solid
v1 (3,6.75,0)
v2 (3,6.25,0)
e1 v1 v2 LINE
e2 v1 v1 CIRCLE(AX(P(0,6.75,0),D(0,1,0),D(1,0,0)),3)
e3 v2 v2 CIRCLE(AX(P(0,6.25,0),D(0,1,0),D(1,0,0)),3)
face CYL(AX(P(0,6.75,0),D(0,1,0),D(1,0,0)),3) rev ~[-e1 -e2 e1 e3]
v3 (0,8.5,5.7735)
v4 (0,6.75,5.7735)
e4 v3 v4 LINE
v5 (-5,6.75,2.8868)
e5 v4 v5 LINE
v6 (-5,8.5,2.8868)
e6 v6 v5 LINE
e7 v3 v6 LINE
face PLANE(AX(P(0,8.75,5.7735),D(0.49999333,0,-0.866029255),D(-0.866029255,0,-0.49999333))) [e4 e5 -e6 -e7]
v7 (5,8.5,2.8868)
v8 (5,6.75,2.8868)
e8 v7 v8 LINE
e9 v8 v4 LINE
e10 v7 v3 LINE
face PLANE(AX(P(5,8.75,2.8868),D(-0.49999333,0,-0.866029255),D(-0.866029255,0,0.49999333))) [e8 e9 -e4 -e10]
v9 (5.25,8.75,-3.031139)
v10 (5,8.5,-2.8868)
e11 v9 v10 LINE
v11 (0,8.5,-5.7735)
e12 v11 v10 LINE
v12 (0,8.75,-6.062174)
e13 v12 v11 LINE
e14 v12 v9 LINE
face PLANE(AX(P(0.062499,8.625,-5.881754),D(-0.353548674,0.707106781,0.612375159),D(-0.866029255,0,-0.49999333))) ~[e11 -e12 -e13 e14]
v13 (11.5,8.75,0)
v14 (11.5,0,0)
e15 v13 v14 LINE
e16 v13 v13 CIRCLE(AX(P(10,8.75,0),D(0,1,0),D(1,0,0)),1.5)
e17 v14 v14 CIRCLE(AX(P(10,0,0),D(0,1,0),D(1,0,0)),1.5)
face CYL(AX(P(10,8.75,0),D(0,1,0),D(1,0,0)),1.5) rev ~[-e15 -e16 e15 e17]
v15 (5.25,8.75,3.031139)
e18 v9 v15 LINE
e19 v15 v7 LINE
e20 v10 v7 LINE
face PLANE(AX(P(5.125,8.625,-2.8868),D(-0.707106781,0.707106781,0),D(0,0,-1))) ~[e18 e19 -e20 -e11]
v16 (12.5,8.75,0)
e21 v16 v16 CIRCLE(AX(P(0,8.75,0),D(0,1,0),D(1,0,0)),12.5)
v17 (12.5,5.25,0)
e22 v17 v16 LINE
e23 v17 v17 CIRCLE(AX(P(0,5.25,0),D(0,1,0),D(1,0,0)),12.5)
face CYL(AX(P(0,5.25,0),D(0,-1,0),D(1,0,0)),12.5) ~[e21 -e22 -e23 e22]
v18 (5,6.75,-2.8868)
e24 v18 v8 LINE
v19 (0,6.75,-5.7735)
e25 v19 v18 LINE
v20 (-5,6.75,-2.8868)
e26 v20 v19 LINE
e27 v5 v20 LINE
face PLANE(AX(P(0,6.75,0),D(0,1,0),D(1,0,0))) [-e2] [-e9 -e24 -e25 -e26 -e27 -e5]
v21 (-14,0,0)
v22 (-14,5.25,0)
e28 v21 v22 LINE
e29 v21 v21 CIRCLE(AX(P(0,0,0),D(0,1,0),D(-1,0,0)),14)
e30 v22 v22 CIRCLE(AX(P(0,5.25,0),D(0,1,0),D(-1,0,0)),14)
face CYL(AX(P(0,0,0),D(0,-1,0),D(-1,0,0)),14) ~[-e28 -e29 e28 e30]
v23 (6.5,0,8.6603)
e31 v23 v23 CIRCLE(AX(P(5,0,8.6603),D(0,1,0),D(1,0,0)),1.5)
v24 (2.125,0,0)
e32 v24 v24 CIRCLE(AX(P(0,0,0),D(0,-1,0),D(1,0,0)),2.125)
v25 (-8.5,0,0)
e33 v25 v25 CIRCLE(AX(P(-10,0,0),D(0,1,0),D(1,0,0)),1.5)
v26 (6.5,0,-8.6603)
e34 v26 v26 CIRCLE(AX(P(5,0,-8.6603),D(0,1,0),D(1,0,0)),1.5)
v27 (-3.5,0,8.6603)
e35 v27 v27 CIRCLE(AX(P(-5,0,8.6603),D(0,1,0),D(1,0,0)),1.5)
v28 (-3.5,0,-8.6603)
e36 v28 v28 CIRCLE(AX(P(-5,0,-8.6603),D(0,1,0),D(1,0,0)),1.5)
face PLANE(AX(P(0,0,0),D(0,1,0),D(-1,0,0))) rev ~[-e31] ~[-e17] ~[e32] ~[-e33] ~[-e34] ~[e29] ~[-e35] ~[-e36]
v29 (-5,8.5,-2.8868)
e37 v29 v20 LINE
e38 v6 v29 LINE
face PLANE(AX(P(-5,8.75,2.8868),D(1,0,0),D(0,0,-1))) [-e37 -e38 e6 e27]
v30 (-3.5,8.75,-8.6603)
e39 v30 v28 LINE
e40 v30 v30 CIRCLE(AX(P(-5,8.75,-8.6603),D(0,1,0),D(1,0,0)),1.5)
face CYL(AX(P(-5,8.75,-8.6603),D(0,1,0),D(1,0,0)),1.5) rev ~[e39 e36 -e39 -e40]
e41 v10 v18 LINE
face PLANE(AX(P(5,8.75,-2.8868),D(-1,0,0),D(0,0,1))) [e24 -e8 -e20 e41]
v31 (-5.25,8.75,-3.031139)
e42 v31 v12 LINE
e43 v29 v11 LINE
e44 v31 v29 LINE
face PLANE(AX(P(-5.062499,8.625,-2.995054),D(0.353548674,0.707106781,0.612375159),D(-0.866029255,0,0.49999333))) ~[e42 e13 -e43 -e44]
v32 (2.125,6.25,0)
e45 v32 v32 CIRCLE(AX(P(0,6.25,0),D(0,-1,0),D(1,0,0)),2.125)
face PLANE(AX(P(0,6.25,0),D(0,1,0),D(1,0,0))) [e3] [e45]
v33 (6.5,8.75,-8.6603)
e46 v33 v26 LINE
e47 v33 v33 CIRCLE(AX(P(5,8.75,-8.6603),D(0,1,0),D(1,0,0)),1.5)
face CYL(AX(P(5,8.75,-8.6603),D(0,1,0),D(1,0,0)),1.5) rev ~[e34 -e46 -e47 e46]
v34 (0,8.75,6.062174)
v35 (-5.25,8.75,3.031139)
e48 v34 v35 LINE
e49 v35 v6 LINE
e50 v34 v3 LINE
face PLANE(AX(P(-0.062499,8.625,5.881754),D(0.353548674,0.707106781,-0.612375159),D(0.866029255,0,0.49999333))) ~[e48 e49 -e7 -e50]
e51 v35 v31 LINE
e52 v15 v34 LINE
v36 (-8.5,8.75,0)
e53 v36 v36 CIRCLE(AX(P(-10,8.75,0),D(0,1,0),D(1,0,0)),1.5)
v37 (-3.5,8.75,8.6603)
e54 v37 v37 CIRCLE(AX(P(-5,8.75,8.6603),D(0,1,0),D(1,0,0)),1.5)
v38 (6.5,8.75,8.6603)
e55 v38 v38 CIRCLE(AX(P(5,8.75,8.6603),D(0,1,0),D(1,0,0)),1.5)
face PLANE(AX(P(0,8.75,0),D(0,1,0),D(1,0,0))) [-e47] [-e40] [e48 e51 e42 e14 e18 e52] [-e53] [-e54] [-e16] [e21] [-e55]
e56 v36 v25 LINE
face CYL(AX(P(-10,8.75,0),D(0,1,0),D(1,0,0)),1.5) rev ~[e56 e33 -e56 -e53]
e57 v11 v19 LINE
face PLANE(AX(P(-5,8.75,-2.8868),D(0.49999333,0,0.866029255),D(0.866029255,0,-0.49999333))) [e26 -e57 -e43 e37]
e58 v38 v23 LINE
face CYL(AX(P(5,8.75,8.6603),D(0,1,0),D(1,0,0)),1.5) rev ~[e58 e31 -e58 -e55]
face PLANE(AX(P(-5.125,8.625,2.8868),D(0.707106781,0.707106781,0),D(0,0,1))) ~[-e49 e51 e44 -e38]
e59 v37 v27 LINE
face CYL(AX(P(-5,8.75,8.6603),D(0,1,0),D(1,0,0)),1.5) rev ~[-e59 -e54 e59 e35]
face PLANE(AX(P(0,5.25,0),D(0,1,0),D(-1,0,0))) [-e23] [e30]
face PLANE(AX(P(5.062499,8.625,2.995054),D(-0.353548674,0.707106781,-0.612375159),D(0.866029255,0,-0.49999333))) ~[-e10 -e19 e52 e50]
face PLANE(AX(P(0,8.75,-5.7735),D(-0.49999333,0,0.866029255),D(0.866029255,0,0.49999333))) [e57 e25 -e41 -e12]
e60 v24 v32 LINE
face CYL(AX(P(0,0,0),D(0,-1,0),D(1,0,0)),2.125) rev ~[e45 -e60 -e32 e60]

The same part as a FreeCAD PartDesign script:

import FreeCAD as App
import Part
import Sketcher
from FreeCAD import Vector
Q = App.Units.Quantity


def edges_at(feature, points):
    """Names of the edges that pass closest to the given points."""
    edges = feature.Shape.Edges
    near = lambda p: min(range(len(edges)), key=lambda i: edges[i].distToShape(Part.Vertex(*p))[0])
    return sorted({f"Edge{near(p) + 1}" for p in points})


def add_polygon(sketch, points):
    """Adds a closed chain of lines whose ends are joined by coincident constraints."""
    first, n = sketch.GeometryCount, len(points)
    for a, b in zip(points, points[1:] + points[:1]):
        sketch.addGeometry(Part.LineSegment(App.Vector(*a, 0), App.Vector(*b, 0)), False)
    for i in range(n):
        sketch.addConstraint(Sketcher.Constraint("Coincident", first + i, 2, first + (i + 1) % n, 1))

doc = App.newDocument("Part")
body = doc.addObject("PartDesign::Body", "Body")

# Sketch on XZ plane
sketch1 = doc.addObject("Sketcher::SketchObject", "Sketch")
body.addObject(sketch1)
sketch1.AttachmentSupport = (doc.XZ_Plane, [""])
sketch1.MapMode = "FlatFace"
sketch1.addGeometry(Part.Circle(Vector(0, 0, 0), Vector(0, 0, 1), 14), False)
sketch1.addConstraint([
    Sketcher.Constraint("Coincident", 0, 3, -1, 1),
    Sketcher.Constraint("Diameter", 0, Q("28 mm")),
])
pad1 = doc.addObject("PartDesign::Pad", "Pad")
body.addObject(pad1)
pad1.Profile = sketch1
pad1.Length = 5.25
pad1.Reversed = True

# Sketch on XZ plane
sketch2 = doc.addObject("Sketcher::SketchObject", "Sketch001")
body.addObject(sketch2)
sketch2.AttachmentSupport = (doc.XZ_Plane, [""])
sketch2.MapMode = "FlatFace"
sketch2.AttachmentOffset = App.Placement(Vector(0, 0, -5.25), App.Rotation())
sketch2.addGeometry(Part.Circle(Vector(0, 0, 0), Vector(0, 0, 1), 12), False)
sketch2.addConstraint([
    Sketcher.Constraint("Coincident", 0, 3, -1, 1),
    Sketcher.Constraint("Diameter", 0, Q("25 mm")),
])
pad2 = doc.addObject("PartDesign::Pad", "Pad001")
body.addObject(pad2)
pad2.Profile = sketch2
pad2.Length = 3.5
pad2.Reversed = True

# Sketch on XZ plane
sketch3 = doc.addObject("Sketcher::SketchObject", "Sketch002")
body.addObject(sketch3)
sketch3.AttachmentSupport = (doc.XZ_Plane, [""])
sketch3.MapMode = "FlatFace"
sketch3.AttachmentOffset = App.Placement(Vector(0, 0, -8.75), App.Rotation())
sketch3.addGeometry([
    Part.Circle(Vector(-10, 0, 0), Vector(0, 0, 1), 1.5),  # 0
    Part.Circle(Vector(-5, 8.7, 0), Vector(0, 0, 1), 1.5),  # 1
    Part.Circle(Vector(5, 8.7, 0), Vector(0, 0, 1), 1.5),  # 2
    Part.Circle(Vector(10, 0, 0), Vector(0, 0, 1), 1.5),  # 3
    Part.Circle(Vector(5, -8.7, 0), Vector(0, 0, 1), 1.5),  # 4
    Part.Circle(Vector(-5, -8.7, 0), Vector(0, 0, 1), 1.5),  # 5
], False)
sketch3.addConstraint([
    Sketcher.Constraint("Equal", 0, 1),
    Sketcher.Constraint("Equal", 1, 2),
    Sketcher.Constraint("Equal", 2, 3),
    Sketcher.Constraint("Equal", 3, 4),
    Sketcher.Constraint("Equal", 4, 5),
    Sketcher.Constraint("Symmetric", 0, 3, 3, 3, -1, 1),
    Sketcher.Constraint("Symmetric", 1, 3, 4, 3, -1, 1),
    Sketcher.Constraint("Symmetric", 2, 3, 5, 3, -1, 1),
    Sketcher.Constraint("Symmetric", 1, 3, 2, 3, -2),
    Sketcher.Constraint("PointOnObject", 0, 3, -1),
    Sketcher.Constraint("Diameter", 0, Q("3 mm")),
    Sketcher.Constraint("DistanceX", 0, 3, -1, 1, Q("10 mm")),
    Sketcher.Constraint("DistanceX", 1, 3, -1, 1, Q("5 mm")),
    Sketcher.Constraint("DistanceY", -1, 1, 1, 3, Q("8.6603 mm")),
])
pocket1 = doc.addObject("PartDesign::Pocket", "Pocket")
body.addObject(pocket1)
pocket1.Profile = sketch3
pocket1.Type = "ThroughAll"
pocket1.Reversed = True

# Sketch on XZ plane
sketch4 = doc.addObject("Sketcher::SketchObject", "Sketch003")
body.addObject(sketch4)
sketch4.AttachmentSupport = (doc.XZ_Plane, [""])
sketch4.MapMode = "FlatFace"
sketch4.AttachmentOffset = App.Placement(Vector(0, 0, -8.75), App.Rotation())
add_polygon(sketch4, [(-5, 3), (0, 6), (5, 3), (5, -3), (0, -6), (-5, -3)])  # lines 0-5
sketch4.addConstraint([
    Sketcher.Constraint("Vertical", 2),
    Sketcher.Constraint("Vertical", 5),
    Sketcher.Constraint("Symmetric", 0, 2, 3, 2, -1, 1),
    Sketcher.Constraint("Symmetric", 1, 2, 4, 2, -1, 1),
    Sketcher.Constraint("PointOnObject", 0, 2, -2),
    Sketcher.Constraint("Parallel", 0, 3),
    Sketcher.Constraint("Horizontal", 2, 2, 4, 2),
    Sketcher.Constraint("DistanceX", -1, 1, 1, 2, Q("5 mm")),
    Sketcher.Constraint("Angle", 0, Q("29.9996 deg")),
    Sketcher.Constraint("DistanceY", 2, 2, 2, 1, Q("5.7736 mm")),
])
pocket2 = doc.addObject("PartDesign::Pocket", "Pocket001")
body.addObject(pocket2)
pocket2.Profile = sketch4
pocket2.Length = 2
pocket2.Reversed = True

# Sketch on XZ plane
sketch5 = doc.addObject("Sketcher::SketchObject", "Sketch004")
body.addObject(sketch5)
sketch5.AttachmentSupport = (doc.XZ_Plane, [""])
sketch5.MapMode = "FlatFace"
sketch5.addGeometry(Part.Circle(Vector(0, 0, 0), Vector(0, 0, 1), 2.1), False)
sketch5.addConstraint([
    Sketcher.Constraint("Coincident", 0, 3, -1, 1),
    Sketcher.Constraint("Diameter", 0, Q("4.25 mm")),
])
pocket3 = doc.addObject("PartDesign::Pocket", "Pocket002")
body.addObject(pocket3)
pocket3.Profile = sketch5
pocket3.Type = "ThroughAll"
doc.recompute()

chamfer = doc.addObject("PartDesign::Chamfer", "Chamfer")
body.addObject(chamfer)
chamfer.Base = (pocket3, edges_at(pocket3, [
    (2.5, 8.75, 4.33),
    (5, 8.75, 0),
    (2.5, 8.75, -4.33),
    (-2.5, 8.75, -4.33),
    (-5, 8.75, 0),
    (-2.5, 8.75, 4.33),
]))
chamfer.Size = 0.25

# Sketch on XZ plane
sketch6 = doc.addObject("Sketcher::SketchObject", "Sketch005")
body.addObject(sketch6)
sketch6.AttachmentSupport = (doc.XZ_Plane, [""])
sketch6.MapMode = "FlatFace"
sketch6.AttachmentOffset = App.Placement(Vector(0, 0, -6.75), App.Rotation())
sketch6.addGeometry(Part.Circle(Vector(0, 0, 0), Vector(0, 0, 1), 3), False)
sketch6.addConstraint([
    Sketcher.Constraint("Coincident", 0, 3, -1, 1),
    Sketcher.Constraint("Diameter", 0, Q("6 mm")),
])
pocket4 = doc.addObject("PartDesign::Pocket", "Pocket003")
body.addObject(pocket4)
pocket4.Profile = sketch6
pocket4.Length = 0.5
pocket4.Reversed = True

doc.recompute()
